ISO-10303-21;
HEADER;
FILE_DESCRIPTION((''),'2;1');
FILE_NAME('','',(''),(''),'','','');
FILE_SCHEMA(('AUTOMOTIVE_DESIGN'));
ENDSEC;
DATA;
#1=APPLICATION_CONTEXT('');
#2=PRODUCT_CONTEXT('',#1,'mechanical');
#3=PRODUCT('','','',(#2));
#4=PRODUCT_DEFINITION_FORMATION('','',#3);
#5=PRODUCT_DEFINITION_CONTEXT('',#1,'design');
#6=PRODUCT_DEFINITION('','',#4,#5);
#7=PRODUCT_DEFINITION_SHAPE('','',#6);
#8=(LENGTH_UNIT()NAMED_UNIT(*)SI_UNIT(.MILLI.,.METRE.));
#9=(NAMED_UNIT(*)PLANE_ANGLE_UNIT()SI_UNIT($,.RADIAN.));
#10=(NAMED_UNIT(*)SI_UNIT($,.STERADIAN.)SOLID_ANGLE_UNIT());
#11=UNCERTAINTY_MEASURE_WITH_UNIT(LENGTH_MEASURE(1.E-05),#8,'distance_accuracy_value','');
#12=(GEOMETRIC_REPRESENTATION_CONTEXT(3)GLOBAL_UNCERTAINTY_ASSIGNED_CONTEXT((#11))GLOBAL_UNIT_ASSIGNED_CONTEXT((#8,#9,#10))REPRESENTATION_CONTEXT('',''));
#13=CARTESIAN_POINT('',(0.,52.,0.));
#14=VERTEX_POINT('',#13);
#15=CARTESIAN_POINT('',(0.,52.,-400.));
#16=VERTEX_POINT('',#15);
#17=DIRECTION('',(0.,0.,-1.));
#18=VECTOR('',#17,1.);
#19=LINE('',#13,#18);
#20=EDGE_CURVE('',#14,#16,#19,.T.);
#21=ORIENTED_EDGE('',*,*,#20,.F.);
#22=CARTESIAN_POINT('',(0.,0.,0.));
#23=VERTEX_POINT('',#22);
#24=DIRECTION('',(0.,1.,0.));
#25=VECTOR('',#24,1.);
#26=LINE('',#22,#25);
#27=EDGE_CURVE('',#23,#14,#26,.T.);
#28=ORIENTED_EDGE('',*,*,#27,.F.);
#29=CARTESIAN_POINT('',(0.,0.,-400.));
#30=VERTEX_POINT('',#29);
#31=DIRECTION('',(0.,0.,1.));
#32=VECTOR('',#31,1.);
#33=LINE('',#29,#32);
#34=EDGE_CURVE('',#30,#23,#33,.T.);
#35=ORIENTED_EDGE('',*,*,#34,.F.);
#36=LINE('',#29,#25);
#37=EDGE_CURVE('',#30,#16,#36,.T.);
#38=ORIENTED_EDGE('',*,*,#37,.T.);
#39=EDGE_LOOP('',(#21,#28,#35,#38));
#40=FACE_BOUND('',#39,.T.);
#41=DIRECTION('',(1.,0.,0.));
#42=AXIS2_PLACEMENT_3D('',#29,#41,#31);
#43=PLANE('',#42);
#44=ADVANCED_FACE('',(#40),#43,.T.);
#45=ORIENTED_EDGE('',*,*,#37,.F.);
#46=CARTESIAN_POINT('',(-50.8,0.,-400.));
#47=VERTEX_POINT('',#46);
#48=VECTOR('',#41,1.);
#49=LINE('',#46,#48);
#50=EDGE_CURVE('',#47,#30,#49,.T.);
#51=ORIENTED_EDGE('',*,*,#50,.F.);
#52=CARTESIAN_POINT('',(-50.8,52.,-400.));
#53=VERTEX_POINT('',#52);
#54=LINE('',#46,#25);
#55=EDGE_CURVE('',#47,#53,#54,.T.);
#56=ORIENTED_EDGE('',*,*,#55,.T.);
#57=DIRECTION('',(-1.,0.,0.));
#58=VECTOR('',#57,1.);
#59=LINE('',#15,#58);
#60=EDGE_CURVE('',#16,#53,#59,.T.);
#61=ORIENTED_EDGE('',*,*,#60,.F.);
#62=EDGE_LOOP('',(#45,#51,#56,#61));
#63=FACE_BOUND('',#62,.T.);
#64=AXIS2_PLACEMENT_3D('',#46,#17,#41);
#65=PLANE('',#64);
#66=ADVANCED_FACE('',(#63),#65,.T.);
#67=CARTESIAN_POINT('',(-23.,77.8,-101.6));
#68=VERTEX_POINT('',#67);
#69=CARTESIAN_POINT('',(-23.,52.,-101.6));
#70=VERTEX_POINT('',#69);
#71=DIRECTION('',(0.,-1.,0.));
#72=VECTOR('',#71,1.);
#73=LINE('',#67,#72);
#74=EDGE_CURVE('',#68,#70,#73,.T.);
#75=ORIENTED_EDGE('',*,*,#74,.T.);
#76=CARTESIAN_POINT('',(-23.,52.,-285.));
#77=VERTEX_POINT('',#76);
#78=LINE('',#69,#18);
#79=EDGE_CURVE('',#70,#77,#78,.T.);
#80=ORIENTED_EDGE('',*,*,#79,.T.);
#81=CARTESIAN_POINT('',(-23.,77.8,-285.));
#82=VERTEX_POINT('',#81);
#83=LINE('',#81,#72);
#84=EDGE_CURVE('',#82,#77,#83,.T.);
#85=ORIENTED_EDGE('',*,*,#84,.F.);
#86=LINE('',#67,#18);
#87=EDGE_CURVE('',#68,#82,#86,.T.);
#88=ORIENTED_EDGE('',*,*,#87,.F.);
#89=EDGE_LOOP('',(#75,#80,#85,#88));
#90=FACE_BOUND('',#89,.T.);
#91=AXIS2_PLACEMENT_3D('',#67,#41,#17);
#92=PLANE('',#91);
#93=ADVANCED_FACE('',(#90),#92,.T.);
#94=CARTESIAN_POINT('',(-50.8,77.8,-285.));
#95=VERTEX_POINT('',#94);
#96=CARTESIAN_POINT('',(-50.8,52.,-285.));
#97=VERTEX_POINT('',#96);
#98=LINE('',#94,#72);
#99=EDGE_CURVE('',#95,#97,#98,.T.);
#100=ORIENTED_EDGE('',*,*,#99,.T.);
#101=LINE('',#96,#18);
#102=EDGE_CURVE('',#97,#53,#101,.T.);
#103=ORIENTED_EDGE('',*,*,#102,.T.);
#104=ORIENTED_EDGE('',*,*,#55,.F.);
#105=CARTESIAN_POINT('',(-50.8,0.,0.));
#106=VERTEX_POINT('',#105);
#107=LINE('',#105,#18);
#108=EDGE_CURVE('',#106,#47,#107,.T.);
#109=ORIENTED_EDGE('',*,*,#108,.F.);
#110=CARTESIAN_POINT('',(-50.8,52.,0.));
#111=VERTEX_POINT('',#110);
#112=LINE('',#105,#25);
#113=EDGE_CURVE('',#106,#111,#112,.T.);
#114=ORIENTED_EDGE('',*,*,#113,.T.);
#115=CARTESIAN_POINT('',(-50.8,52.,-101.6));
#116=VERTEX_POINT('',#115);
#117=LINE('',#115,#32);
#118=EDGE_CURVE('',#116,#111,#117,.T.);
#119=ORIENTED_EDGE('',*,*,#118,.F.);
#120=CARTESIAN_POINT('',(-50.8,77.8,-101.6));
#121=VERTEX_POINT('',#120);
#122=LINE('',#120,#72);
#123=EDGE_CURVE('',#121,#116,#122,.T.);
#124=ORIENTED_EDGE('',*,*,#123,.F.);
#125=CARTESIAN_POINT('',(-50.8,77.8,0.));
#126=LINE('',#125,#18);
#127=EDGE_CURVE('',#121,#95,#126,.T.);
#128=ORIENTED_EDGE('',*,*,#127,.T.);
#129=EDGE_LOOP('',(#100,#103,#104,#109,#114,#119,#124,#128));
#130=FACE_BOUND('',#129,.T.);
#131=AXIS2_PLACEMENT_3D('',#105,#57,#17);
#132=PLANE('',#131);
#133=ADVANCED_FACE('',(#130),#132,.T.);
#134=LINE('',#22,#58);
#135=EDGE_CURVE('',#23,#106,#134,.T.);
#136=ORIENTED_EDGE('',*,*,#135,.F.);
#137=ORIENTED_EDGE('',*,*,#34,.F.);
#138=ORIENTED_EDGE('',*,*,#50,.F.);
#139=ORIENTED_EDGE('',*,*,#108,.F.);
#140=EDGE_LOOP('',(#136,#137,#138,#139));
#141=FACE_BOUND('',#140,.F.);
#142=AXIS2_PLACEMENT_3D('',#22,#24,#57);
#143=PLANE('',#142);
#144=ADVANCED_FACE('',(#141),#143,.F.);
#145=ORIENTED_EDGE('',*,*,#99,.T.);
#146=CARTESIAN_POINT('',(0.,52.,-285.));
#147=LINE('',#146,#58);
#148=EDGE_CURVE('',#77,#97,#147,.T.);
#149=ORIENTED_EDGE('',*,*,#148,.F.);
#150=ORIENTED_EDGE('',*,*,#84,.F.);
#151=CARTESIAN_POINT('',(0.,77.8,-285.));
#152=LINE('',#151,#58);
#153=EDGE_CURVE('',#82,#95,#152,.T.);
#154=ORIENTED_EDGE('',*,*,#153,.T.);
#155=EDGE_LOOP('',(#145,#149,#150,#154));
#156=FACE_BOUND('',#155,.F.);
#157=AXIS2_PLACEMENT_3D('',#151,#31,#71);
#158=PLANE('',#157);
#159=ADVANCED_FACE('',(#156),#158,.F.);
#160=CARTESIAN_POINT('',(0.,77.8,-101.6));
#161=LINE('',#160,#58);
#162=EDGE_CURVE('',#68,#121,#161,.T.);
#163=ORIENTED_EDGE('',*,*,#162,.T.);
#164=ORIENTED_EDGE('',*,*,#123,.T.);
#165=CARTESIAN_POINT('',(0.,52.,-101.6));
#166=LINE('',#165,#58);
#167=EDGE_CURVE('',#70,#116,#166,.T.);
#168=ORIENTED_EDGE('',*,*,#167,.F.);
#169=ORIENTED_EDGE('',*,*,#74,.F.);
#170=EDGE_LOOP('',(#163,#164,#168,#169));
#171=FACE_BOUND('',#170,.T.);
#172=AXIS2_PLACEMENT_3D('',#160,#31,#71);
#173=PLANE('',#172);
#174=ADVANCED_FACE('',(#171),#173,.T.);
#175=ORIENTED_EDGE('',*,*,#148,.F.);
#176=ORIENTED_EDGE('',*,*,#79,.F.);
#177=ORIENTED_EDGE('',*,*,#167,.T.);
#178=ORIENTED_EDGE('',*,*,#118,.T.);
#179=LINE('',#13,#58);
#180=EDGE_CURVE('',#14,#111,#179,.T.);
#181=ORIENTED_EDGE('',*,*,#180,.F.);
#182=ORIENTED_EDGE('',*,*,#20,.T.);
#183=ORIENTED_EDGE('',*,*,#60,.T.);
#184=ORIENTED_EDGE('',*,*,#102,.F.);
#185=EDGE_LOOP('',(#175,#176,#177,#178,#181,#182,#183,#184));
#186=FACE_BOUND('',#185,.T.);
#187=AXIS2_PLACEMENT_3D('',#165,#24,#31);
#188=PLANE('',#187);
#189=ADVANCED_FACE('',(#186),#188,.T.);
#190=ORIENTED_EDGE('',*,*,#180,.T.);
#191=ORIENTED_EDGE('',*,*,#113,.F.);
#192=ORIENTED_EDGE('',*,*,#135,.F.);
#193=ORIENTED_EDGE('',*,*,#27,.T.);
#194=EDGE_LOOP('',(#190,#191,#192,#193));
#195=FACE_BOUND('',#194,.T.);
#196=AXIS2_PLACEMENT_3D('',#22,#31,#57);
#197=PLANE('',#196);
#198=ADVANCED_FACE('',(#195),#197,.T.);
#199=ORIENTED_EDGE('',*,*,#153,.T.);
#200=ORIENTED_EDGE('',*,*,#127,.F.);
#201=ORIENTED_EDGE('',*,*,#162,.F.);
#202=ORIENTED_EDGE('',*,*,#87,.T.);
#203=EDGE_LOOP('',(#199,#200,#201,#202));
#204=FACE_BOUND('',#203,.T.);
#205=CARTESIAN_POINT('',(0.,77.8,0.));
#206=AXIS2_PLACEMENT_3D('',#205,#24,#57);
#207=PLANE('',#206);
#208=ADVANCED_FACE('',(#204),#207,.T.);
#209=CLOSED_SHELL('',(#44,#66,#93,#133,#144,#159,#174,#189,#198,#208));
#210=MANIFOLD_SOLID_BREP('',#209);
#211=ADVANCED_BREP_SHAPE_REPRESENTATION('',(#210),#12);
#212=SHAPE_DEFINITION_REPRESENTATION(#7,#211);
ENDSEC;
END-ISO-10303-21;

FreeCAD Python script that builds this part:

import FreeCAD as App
import Part
import Sketcher
from FreeCAD import Vector


def add_polygon(sketch, points):
    """Adds a closed chain of lines whose ends are joined by coincident constraints."""
    first, n = sketch.GeometryCount, len(points)
    for a, b in zip(points, points[1:] + points[:1]):
        sketch.addGeometry(Part.LineSegment(App.Vector(*a, 0), App.Vector(*b, 0)), False)
    for i in range(n):
        sketch.addConstraint(Sketcher.Constraint("Coincident", first + i, 2, first + (i + 1) % n, 1))

doc = App.newDocument("Part")
body = doc.addObject("PartDesign::Body", "Body")

sketch1 = body.newObject("Sketcher::SketchObject", "Sketch")
sketch1.AttachmentSupport = (doc.getObject("XZ_Plane"), [""])
sketch1.MapMode = "FlatFace"
add_polygon(sketch1, [(-50.8, 0), (0, 0), (0, -400), (-50.8, -400)])
sketch1.addConstraint([
    Sketcher.Constraint("Horizontal", 0),
    Sketcher.Constraint("Vertical", 1),
    Sketcher.Constraint("Horizontal", 2),
    Sketcher.Constraint("Vertical", 3),
    Sketcher.Constraint("Coincident", 0, 2, -1, 1),
    Sketcher.Constraint("DistanceY", 1, 2, 1, 1, 400.0),
    Sketcher.Constraint("DistanceX", 0, 1, 0, 2, 50.8),
])
pad1 = body.newObject("PartDesign::Pad", "Pad")
pad1.Profile = sketch1
pad1.Length = 77.8
pad1.Reversed = True

sketch2 = body.newObject("Sketcher::SketchObject", "Sketch001")
sketch2.AttachmentSupport = (doc.getObject("YZ_Plane"), [""])
sketch2.MapMode = "FlatFace"
add_polygon(sketch2, [(77.8, -400), (77.8, -285), (52, -285), (52, -400)])
add_polygon(sketch2, [(77.8, -101.6), (77.8, 0), (52, 0), (52, -101.6)])
sketch2.addConstraint([
    Sketcher.Constraint("Vertical", 0),
    Sketcher.Constraint("Horizontal", 1),
    Sketcher.Constraint("Vertical", 2),
    Sketcher.Constraint("Horizontal", 3),
    Sketcher.Constraint("Vertical", 4),
    Sketcher.Constraint("Horizontal", 5),
    Sketcher.Constraint("Vertical", 6),
    Sketcher.Constraint("Horizontal", 7),
    Sketcher.Constraint("PointOnObject", 4, 2, -1),
    Sketcher.Constraint("Vertical", 3, 2, 4, 2),
    Sketcher.Constraint("Vertical", 2, 2, 5, 2),
    Sketcher.Constraint("DistanceY", 0, 1, 0, 2, 115.0),
    Sketcher.Constraint("DistanceX", 1, 2, 1, 1, 25.8),
    Sketcher.Constraint("DistanceY", 4, 1, 4, 2, 101.6),
    Sketcher.Constraint("DistanceY", 0, 2, -1, 1, 285.0),
    Sketcher.Constraint("DistanceX", -1, 1, 1, 2, 52.0),
])
pocket1 = body.newObject("PartDesign::Pocket", "Pocket")
pocket1.Profile = sketch2
pocket1.Length = 50.8

sketch3 = body.newObject("Sketcher::SketchObject", "Sketch002")
sketch3.AttachmentSupport = (doc.getObject("XZ_Plane"), [""])
sketch3.MapMode = "FlatFace"
sketch3.AttachmentOffset = App.Placement(Vector(0, 0, -77.8), App.Rotation())
add_polygon(sketch3, [(-23, -101.6), (0, -101.6), (0, -285), (-23, -285)])
sketch3.addConstraint([
    Sketcher.Constraint("Horizontal", 0),
    Sketcher.Constraint("Vertical", 1),
    Sketcher.Constraint("Horizontal", 2),
    Sketcher.Constraint("Vertical", 3),
    Sketcher.Constraint("PointOnObject", 0, 2, -2),
    Sketcher.Constraint("DistanceX", 0, 1, 0, 2, 23.0),
    Sketcher.Constraint("DistanceY", 1, 2, 1, 1, 183.4),
    Sketcher.Constraint("DistanceY", 1, 2, -1, 1, 285.0),
])
pocket2 = body.newObject("PartDesign::Pocket", "Pocket001")
pocket2.Profile = sketch3
pocket2.Length = 25.8
pocket2.Reversed = True

doc.recompute()
